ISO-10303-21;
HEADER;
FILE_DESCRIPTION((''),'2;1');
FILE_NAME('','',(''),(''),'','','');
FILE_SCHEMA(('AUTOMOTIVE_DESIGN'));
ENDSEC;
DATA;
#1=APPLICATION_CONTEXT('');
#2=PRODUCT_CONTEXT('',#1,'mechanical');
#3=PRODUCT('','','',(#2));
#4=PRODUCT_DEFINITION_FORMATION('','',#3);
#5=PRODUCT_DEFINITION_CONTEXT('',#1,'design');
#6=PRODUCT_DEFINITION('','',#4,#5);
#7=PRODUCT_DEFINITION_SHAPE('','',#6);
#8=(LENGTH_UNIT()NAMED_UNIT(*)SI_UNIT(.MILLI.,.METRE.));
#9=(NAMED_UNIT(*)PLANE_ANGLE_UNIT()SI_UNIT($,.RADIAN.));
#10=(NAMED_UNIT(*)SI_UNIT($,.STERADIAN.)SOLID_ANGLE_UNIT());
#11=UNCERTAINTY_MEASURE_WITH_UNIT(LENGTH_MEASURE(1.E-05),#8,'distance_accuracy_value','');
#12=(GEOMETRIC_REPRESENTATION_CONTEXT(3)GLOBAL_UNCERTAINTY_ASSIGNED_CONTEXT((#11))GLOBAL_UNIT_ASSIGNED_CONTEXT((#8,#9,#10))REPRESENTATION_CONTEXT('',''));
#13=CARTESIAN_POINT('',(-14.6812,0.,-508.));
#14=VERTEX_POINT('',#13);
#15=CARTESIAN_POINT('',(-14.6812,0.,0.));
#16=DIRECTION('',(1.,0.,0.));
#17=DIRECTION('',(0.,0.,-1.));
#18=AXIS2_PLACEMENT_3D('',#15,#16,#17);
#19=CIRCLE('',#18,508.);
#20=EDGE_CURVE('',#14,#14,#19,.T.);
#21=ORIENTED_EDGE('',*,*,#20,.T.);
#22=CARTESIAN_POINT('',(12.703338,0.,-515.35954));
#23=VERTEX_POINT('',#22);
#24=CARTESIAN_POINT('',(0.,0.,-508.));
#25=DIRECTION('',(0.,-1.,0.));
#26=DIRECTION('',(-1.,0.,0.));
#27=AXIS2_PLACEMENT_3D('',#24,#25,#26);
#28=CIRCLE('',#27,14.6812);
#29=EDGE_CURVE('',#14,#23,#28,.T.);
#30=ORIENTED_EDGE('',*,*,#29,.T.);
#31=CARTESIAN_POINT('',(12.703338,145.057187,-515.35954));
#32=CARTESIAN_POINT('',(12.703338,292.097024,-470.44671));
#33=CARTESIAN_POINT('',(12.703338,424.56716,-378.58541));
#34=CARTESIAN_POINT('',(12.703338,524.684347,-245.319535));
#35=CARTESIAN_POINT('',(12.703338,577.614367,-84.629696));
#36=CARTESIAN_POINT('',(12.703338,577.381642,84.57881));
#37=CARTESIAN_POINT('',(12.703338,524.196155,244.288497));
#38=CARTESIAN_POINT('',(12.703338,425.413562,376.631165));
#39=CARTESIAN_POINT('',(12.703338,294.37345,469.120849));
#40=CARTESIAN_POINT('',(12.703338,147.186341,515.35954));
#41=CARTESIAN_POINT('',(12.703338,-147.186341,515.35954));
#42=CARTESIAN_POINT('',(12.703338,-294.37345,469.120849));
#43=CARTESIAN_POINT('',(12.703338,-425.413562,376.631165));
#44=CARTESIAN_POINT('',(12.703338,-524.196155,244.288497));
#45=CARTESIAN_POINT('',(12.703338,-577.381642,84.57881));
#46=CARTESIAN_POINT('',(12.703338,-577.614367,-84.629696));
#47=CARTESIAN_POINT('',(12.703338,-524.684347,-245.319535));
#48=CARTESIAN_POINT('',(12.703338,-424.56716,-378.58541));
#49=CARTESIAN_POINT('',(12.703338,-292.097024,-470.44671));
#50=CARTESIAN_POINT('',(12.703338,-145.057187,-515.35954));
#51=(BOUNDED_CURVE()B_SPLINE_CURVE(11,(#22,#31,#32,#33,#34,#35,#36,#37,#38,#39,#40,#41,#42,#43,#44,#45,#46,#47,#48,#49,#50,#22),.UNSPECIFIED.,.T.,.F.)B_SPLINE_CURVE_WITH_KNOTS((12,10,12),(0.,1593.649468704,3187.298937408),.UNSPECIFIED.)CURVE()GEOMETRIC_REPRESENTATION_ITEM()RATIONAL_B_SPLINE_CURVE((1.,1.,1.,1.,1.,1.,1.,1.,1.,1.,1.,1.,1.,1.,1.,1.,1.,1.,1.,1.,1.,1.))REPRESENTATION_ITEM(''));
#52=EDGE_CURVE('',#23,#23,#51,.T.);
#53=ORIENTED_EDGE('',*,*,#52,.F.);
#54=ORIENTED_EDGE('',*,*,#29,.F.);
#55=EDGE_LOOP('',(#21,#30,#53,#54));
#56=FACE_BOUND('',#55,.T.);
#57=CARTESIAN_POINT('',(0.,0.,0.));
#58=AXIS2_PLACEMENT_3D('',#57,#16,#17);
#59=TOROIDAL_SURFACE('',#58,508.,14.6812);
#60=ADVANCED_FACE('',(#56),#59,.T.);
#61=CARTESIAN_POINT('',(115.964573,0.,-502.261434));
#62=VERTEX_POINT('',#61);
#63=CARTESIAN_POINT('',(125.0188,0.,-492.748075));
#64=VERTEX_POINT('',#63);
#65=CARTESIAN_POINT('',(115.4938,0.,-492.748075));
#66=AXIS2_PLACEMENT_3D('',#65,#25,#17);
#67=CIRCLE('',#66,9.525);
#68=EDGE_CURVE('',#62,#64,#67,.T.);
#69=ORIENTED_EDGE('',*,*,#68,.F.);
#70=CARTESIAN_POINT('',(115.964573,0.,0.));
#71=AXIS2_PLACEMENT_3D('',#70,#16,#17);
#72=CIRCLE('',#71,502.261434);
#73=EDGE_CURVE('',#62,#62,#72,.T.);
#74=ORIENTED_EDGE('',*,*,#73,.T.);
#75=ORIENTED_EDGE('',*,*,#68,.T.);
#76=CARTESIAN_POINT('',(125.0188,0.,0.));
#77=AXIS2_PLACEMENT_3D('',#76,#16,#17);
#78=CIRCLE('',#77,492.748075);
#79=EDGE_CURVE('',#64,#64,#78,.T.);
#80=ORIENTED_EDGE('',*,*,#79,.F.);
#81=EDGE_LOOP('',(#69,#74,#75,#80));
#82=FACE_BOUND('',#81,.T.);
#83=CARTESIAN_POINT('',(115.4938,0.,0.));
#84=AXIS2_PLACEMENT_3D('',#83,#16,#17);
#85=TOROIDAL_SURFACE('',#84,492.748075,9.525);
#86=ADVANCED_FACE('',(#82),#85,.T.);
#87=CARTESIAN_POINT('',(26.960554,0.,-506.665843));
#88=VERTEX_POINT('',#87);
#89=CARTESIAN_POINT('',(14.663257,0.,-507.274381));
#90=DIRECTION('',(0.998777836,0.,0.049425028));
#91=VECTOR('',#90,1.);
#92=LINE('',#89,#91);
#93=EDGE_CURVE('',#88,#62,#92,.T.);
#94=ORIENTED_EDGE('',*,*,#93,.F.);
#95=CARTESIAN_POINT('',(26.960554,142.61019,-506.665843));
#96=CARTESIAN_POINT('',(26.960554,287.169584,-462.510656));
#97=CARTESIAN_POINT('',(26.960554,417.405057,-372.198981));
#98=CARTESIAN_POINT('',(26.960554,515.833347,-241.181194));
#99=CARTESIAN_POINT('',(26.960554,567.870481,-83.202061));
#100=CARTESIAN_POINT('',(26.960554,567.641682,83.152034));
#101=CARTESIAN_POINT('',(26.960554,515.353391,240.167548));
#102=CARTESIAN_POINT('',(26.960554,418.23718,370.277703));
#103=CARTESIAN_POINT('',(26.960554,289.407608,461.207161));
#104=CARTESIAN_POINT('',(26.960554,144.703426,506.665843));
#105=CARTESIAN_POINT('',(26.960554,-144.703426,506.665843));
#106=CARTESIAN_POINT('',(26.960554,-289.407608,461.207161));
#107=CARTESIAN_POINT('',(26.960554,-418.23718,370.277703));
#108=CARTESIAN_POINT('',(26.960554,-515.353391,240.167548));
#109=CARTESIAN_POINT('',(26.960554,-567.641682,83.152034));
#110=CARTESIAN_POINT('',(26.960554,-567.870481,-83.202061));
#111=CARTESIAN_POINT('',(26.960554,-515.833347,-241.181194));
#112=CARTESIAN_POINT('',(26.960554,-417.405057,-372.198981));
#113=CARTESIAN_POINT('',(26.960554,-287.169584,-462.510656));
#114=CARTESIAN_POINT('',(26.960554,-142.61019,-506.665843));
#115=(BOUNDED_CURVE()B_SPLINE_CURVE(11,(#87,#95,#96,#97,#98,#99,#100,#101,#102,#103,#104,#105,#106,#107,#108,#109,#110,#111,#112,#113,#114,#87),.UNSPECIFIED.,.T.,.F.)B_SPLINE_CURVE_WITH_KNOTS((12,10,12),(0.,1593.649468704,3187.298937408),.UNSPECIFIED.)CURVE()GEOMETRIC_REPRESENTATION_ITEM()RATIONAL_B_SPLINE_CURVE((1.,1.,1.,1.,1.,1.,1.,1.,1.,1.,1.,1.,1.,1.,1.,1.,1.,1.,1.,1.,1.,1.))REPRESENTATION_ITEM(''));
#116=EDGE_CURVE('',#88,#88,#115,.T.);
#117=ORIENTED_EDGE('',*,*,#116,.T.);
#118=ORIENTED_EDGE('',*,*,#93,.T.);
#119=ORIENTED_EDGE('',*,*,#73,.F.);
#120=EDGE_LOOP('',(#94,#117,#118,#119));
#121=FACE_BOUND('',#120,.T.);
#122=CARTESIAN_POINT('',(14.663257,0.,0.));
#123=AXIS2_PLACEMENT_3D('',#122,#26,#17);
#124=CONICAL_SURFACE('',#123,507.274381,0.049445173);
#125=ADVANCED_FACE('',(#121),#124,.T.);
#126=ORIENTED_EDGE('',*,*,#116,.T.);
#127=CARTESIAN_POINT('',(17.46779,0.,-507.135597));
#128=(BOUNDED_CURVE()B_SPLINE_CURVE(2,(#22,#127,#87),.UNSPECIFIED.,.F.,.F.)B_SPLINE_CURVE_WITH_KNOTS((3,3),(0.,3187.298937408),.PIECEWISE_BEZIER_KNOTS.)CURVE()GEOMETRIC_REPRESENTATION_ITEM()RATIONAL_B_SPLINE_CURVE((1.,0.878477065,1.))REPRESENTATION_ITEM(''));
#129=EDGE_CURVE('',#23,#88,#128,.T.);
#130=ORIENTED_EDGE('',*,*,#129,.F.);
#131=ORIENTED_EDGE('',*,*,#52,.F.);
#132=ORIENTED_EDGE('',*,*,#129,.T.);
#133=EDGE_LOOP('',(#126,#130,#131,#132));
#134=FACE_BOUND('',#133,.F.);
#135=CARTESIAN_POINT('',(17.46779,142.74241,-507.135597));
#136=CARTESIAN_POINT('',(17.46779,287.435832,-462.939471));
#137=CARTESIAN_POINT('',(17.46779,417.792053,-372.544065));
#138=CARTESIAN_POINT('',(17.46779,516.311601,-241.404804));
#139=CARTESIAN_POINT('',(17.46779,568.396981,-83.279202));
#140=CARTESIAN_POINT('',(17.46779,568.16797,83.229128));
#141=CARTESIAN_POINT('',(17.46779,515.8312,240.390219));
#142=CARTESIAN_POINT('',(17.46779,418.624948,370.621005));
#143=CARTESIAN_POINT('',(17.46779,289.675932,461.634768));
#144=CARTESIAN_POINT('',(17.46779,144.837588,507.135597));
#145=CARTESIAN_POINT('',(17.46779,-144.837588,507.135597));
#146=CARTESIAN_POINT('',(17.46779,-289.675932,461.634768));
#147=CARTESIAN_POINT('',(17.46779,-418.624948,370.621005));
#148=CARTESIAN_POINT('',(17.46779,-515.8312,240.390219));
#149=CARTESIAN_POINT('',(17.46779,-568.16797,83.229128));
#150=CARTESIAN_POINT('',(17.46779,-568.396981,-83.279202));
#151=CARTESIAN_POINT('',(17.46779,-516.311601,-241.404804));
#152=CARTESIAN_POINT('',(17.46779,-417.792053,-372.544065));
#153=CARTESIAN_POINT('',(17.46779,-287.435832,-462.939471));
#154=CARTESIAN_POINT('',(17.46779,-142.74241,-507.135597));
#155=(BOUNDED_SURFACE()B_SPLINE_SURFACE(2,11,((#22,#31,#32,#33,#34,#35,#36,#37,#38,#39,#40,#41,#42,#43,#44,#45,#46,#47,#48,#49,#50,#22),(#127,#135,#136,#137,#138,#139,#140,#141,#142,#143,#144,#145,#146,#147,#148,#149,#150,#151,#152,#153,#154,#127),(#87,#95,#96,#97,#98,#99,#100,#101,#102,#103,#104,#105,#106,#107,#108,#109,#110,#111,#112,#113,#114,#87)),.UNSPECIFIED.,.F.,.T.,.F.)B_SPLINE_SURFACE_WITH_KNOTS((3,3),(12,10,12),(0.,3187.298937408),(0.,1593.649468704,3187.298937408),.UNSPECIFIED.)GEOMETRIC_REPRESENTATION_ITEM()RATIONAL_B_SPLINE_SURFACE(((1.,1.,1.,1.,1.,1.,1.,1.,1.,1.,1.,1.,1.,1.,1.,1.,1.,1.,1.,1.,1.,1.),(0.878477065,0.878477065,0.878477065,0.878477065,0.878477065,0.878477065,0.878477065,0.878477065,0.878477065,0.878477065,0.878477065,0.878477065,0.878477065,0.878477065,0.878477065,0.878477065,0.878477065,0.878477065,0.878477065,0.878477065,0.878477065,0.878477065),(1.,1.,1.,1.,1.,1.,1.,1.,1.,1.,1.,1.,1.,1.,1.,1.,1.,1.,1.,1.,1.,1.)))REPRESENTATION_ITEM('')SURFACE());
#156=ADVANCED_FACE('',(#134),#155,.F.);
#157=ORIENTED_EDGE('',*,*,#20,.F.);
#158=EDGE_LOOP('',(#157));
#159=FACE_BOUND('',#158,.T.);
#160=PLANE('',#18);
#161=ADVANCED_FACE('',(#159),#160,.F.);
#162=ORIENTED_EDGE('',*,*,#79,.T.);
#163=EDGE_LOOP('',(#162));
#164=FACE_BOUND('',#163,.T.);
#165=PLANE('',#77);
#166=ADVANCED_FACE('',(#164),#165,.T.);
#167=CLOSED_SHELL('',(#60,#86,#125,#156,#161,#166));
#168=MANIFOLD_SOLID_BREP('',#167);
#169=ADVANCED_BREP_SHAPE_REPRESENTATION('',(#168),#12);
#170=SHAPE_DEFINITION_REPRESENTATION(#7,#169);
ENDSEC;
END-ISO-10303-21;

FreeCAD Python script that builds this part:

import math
import FreeCAD as App
import Part
import Sketcher

V = App.Vector
Q = App.Units.Quantity


def edges_at(feature, points):
    """Names of the edges that pass closest to the given points."""
    edges = feature.Shape.Edges
    near = lambda p: min(range(len(edges)), key=lambda i: edges[i].distToShape(Part.Vertex(*p))[0])
    return sorted({f"Edge{near(p) + 1}" for p in points})

doc = App.newDocument("Part")
body = doc.addObject("PartDesign::Body", "Body")

# Sketch on XZ plane
sketch1 = body.newObject("Sketcher::SketchObject", "Sketch")
sketch1.AttachmentSupport = (doc.getObject("XZ_Plane"), [""])
sketch1.MapMode = "FlatFace"
sketch1.addGeometry([
    Part.ArcOfCircle(Part.Circle(V(0, -508, 0), V(0, 0, 1), 14.7), math.radians(180), math.radians(360)),  # 0
    Part.ArcOfCircle(Part.Circle(V(0, -508, 0), V(0, 0, 1), 14.7), math.radians(0), math.radians(2.83)),  # 1
    Part.LineSegment(V(14.7, -507.3, 0), V(125, -501.8, 0)),  # 2
    Part.LineSegment(V(125, -501.8, 0), V(125, 0, 0)),  # 3
    Part.LineSegment(V(125, 0, 0), V(-14.7, 0, 0)),  # 4
    Part.LineSegment(V(-14.7, 0, 0), V(-14.7, -508, 0)),  # 5
], False)
sketch1.addConstraint([
    Sketcher.Constraint("Coincident", 0, 2, 1, 1),
    Sketcher.Constraint("Coincident", 1, 2, 2, 1),
    Sketcher.Constraint("Coincident", 2, 2, 3, 1),
    Sketcher.Constraint("Coincident", 3, 2, 4, 1),
    Sketcher.Constraint("Coincident", 4, 2, 5, 1),
    Sketcher.Constraint("Tangent", 5, 2, 0, 1),
    Sketcher.Constraint("Vertical", 3),
    Sketcher.Constraint("Horizontal", 4),
    Sketcher.Constraint("Vertical", 5),
    Sketcher.Constraint("Symmetric", 0, 2, 5, 2, -2),
    Sketcher.Constraint("PointOnObject", 3, 2, -1),
    Sketcher.Constraint("DistanceY", 5, 2, 5, 1, Q("20 in")),
    Sketcher.Constraint("DistanceX", 4, 2, 4, 1, Q("5.5 in")),
    Sketcher.Constraint("Radius", 0, Q("0.578 in")),
    Sketcher.Constraint("Radius", 1, Q("14.679679 mm")),
    Sketcher.Constraint("DistanceY", 1, 2, 2, 2, Q("0.215 in")),
    Sketcher.Constraint("DistanceY", 3, 1, 3, 2, Q("501.813381 mm")),
    Sketcher.Constraint("Distance", 2, Q("110.490581 mm")),
])
revolution = body.newObject("PartDesign::Revolution", "Revolution")
revolution.Profile = sketch1
revolution.ReferenceAxis = (sketch1, ["H_Axis"])
revolution.Angle = 360
doc.recompute()

fillet = body.newObject("PartDesign::Fillet", "Fillet")
fillet.Base = (revolution, edges_at(revolution, [(14.663, 0, 507.274)]))
fillet.Radius = Q("0.688 in")
doc.recompute()

fillet2 = body.newObject("PartDesign::Fillet", "Fillet001")
fillet2.Base = (fillet, edges_at(fillet, [(125.019, 0, 501.813)]))
fillet2.Radius = Q("0.375 in")

doc.recompute()
